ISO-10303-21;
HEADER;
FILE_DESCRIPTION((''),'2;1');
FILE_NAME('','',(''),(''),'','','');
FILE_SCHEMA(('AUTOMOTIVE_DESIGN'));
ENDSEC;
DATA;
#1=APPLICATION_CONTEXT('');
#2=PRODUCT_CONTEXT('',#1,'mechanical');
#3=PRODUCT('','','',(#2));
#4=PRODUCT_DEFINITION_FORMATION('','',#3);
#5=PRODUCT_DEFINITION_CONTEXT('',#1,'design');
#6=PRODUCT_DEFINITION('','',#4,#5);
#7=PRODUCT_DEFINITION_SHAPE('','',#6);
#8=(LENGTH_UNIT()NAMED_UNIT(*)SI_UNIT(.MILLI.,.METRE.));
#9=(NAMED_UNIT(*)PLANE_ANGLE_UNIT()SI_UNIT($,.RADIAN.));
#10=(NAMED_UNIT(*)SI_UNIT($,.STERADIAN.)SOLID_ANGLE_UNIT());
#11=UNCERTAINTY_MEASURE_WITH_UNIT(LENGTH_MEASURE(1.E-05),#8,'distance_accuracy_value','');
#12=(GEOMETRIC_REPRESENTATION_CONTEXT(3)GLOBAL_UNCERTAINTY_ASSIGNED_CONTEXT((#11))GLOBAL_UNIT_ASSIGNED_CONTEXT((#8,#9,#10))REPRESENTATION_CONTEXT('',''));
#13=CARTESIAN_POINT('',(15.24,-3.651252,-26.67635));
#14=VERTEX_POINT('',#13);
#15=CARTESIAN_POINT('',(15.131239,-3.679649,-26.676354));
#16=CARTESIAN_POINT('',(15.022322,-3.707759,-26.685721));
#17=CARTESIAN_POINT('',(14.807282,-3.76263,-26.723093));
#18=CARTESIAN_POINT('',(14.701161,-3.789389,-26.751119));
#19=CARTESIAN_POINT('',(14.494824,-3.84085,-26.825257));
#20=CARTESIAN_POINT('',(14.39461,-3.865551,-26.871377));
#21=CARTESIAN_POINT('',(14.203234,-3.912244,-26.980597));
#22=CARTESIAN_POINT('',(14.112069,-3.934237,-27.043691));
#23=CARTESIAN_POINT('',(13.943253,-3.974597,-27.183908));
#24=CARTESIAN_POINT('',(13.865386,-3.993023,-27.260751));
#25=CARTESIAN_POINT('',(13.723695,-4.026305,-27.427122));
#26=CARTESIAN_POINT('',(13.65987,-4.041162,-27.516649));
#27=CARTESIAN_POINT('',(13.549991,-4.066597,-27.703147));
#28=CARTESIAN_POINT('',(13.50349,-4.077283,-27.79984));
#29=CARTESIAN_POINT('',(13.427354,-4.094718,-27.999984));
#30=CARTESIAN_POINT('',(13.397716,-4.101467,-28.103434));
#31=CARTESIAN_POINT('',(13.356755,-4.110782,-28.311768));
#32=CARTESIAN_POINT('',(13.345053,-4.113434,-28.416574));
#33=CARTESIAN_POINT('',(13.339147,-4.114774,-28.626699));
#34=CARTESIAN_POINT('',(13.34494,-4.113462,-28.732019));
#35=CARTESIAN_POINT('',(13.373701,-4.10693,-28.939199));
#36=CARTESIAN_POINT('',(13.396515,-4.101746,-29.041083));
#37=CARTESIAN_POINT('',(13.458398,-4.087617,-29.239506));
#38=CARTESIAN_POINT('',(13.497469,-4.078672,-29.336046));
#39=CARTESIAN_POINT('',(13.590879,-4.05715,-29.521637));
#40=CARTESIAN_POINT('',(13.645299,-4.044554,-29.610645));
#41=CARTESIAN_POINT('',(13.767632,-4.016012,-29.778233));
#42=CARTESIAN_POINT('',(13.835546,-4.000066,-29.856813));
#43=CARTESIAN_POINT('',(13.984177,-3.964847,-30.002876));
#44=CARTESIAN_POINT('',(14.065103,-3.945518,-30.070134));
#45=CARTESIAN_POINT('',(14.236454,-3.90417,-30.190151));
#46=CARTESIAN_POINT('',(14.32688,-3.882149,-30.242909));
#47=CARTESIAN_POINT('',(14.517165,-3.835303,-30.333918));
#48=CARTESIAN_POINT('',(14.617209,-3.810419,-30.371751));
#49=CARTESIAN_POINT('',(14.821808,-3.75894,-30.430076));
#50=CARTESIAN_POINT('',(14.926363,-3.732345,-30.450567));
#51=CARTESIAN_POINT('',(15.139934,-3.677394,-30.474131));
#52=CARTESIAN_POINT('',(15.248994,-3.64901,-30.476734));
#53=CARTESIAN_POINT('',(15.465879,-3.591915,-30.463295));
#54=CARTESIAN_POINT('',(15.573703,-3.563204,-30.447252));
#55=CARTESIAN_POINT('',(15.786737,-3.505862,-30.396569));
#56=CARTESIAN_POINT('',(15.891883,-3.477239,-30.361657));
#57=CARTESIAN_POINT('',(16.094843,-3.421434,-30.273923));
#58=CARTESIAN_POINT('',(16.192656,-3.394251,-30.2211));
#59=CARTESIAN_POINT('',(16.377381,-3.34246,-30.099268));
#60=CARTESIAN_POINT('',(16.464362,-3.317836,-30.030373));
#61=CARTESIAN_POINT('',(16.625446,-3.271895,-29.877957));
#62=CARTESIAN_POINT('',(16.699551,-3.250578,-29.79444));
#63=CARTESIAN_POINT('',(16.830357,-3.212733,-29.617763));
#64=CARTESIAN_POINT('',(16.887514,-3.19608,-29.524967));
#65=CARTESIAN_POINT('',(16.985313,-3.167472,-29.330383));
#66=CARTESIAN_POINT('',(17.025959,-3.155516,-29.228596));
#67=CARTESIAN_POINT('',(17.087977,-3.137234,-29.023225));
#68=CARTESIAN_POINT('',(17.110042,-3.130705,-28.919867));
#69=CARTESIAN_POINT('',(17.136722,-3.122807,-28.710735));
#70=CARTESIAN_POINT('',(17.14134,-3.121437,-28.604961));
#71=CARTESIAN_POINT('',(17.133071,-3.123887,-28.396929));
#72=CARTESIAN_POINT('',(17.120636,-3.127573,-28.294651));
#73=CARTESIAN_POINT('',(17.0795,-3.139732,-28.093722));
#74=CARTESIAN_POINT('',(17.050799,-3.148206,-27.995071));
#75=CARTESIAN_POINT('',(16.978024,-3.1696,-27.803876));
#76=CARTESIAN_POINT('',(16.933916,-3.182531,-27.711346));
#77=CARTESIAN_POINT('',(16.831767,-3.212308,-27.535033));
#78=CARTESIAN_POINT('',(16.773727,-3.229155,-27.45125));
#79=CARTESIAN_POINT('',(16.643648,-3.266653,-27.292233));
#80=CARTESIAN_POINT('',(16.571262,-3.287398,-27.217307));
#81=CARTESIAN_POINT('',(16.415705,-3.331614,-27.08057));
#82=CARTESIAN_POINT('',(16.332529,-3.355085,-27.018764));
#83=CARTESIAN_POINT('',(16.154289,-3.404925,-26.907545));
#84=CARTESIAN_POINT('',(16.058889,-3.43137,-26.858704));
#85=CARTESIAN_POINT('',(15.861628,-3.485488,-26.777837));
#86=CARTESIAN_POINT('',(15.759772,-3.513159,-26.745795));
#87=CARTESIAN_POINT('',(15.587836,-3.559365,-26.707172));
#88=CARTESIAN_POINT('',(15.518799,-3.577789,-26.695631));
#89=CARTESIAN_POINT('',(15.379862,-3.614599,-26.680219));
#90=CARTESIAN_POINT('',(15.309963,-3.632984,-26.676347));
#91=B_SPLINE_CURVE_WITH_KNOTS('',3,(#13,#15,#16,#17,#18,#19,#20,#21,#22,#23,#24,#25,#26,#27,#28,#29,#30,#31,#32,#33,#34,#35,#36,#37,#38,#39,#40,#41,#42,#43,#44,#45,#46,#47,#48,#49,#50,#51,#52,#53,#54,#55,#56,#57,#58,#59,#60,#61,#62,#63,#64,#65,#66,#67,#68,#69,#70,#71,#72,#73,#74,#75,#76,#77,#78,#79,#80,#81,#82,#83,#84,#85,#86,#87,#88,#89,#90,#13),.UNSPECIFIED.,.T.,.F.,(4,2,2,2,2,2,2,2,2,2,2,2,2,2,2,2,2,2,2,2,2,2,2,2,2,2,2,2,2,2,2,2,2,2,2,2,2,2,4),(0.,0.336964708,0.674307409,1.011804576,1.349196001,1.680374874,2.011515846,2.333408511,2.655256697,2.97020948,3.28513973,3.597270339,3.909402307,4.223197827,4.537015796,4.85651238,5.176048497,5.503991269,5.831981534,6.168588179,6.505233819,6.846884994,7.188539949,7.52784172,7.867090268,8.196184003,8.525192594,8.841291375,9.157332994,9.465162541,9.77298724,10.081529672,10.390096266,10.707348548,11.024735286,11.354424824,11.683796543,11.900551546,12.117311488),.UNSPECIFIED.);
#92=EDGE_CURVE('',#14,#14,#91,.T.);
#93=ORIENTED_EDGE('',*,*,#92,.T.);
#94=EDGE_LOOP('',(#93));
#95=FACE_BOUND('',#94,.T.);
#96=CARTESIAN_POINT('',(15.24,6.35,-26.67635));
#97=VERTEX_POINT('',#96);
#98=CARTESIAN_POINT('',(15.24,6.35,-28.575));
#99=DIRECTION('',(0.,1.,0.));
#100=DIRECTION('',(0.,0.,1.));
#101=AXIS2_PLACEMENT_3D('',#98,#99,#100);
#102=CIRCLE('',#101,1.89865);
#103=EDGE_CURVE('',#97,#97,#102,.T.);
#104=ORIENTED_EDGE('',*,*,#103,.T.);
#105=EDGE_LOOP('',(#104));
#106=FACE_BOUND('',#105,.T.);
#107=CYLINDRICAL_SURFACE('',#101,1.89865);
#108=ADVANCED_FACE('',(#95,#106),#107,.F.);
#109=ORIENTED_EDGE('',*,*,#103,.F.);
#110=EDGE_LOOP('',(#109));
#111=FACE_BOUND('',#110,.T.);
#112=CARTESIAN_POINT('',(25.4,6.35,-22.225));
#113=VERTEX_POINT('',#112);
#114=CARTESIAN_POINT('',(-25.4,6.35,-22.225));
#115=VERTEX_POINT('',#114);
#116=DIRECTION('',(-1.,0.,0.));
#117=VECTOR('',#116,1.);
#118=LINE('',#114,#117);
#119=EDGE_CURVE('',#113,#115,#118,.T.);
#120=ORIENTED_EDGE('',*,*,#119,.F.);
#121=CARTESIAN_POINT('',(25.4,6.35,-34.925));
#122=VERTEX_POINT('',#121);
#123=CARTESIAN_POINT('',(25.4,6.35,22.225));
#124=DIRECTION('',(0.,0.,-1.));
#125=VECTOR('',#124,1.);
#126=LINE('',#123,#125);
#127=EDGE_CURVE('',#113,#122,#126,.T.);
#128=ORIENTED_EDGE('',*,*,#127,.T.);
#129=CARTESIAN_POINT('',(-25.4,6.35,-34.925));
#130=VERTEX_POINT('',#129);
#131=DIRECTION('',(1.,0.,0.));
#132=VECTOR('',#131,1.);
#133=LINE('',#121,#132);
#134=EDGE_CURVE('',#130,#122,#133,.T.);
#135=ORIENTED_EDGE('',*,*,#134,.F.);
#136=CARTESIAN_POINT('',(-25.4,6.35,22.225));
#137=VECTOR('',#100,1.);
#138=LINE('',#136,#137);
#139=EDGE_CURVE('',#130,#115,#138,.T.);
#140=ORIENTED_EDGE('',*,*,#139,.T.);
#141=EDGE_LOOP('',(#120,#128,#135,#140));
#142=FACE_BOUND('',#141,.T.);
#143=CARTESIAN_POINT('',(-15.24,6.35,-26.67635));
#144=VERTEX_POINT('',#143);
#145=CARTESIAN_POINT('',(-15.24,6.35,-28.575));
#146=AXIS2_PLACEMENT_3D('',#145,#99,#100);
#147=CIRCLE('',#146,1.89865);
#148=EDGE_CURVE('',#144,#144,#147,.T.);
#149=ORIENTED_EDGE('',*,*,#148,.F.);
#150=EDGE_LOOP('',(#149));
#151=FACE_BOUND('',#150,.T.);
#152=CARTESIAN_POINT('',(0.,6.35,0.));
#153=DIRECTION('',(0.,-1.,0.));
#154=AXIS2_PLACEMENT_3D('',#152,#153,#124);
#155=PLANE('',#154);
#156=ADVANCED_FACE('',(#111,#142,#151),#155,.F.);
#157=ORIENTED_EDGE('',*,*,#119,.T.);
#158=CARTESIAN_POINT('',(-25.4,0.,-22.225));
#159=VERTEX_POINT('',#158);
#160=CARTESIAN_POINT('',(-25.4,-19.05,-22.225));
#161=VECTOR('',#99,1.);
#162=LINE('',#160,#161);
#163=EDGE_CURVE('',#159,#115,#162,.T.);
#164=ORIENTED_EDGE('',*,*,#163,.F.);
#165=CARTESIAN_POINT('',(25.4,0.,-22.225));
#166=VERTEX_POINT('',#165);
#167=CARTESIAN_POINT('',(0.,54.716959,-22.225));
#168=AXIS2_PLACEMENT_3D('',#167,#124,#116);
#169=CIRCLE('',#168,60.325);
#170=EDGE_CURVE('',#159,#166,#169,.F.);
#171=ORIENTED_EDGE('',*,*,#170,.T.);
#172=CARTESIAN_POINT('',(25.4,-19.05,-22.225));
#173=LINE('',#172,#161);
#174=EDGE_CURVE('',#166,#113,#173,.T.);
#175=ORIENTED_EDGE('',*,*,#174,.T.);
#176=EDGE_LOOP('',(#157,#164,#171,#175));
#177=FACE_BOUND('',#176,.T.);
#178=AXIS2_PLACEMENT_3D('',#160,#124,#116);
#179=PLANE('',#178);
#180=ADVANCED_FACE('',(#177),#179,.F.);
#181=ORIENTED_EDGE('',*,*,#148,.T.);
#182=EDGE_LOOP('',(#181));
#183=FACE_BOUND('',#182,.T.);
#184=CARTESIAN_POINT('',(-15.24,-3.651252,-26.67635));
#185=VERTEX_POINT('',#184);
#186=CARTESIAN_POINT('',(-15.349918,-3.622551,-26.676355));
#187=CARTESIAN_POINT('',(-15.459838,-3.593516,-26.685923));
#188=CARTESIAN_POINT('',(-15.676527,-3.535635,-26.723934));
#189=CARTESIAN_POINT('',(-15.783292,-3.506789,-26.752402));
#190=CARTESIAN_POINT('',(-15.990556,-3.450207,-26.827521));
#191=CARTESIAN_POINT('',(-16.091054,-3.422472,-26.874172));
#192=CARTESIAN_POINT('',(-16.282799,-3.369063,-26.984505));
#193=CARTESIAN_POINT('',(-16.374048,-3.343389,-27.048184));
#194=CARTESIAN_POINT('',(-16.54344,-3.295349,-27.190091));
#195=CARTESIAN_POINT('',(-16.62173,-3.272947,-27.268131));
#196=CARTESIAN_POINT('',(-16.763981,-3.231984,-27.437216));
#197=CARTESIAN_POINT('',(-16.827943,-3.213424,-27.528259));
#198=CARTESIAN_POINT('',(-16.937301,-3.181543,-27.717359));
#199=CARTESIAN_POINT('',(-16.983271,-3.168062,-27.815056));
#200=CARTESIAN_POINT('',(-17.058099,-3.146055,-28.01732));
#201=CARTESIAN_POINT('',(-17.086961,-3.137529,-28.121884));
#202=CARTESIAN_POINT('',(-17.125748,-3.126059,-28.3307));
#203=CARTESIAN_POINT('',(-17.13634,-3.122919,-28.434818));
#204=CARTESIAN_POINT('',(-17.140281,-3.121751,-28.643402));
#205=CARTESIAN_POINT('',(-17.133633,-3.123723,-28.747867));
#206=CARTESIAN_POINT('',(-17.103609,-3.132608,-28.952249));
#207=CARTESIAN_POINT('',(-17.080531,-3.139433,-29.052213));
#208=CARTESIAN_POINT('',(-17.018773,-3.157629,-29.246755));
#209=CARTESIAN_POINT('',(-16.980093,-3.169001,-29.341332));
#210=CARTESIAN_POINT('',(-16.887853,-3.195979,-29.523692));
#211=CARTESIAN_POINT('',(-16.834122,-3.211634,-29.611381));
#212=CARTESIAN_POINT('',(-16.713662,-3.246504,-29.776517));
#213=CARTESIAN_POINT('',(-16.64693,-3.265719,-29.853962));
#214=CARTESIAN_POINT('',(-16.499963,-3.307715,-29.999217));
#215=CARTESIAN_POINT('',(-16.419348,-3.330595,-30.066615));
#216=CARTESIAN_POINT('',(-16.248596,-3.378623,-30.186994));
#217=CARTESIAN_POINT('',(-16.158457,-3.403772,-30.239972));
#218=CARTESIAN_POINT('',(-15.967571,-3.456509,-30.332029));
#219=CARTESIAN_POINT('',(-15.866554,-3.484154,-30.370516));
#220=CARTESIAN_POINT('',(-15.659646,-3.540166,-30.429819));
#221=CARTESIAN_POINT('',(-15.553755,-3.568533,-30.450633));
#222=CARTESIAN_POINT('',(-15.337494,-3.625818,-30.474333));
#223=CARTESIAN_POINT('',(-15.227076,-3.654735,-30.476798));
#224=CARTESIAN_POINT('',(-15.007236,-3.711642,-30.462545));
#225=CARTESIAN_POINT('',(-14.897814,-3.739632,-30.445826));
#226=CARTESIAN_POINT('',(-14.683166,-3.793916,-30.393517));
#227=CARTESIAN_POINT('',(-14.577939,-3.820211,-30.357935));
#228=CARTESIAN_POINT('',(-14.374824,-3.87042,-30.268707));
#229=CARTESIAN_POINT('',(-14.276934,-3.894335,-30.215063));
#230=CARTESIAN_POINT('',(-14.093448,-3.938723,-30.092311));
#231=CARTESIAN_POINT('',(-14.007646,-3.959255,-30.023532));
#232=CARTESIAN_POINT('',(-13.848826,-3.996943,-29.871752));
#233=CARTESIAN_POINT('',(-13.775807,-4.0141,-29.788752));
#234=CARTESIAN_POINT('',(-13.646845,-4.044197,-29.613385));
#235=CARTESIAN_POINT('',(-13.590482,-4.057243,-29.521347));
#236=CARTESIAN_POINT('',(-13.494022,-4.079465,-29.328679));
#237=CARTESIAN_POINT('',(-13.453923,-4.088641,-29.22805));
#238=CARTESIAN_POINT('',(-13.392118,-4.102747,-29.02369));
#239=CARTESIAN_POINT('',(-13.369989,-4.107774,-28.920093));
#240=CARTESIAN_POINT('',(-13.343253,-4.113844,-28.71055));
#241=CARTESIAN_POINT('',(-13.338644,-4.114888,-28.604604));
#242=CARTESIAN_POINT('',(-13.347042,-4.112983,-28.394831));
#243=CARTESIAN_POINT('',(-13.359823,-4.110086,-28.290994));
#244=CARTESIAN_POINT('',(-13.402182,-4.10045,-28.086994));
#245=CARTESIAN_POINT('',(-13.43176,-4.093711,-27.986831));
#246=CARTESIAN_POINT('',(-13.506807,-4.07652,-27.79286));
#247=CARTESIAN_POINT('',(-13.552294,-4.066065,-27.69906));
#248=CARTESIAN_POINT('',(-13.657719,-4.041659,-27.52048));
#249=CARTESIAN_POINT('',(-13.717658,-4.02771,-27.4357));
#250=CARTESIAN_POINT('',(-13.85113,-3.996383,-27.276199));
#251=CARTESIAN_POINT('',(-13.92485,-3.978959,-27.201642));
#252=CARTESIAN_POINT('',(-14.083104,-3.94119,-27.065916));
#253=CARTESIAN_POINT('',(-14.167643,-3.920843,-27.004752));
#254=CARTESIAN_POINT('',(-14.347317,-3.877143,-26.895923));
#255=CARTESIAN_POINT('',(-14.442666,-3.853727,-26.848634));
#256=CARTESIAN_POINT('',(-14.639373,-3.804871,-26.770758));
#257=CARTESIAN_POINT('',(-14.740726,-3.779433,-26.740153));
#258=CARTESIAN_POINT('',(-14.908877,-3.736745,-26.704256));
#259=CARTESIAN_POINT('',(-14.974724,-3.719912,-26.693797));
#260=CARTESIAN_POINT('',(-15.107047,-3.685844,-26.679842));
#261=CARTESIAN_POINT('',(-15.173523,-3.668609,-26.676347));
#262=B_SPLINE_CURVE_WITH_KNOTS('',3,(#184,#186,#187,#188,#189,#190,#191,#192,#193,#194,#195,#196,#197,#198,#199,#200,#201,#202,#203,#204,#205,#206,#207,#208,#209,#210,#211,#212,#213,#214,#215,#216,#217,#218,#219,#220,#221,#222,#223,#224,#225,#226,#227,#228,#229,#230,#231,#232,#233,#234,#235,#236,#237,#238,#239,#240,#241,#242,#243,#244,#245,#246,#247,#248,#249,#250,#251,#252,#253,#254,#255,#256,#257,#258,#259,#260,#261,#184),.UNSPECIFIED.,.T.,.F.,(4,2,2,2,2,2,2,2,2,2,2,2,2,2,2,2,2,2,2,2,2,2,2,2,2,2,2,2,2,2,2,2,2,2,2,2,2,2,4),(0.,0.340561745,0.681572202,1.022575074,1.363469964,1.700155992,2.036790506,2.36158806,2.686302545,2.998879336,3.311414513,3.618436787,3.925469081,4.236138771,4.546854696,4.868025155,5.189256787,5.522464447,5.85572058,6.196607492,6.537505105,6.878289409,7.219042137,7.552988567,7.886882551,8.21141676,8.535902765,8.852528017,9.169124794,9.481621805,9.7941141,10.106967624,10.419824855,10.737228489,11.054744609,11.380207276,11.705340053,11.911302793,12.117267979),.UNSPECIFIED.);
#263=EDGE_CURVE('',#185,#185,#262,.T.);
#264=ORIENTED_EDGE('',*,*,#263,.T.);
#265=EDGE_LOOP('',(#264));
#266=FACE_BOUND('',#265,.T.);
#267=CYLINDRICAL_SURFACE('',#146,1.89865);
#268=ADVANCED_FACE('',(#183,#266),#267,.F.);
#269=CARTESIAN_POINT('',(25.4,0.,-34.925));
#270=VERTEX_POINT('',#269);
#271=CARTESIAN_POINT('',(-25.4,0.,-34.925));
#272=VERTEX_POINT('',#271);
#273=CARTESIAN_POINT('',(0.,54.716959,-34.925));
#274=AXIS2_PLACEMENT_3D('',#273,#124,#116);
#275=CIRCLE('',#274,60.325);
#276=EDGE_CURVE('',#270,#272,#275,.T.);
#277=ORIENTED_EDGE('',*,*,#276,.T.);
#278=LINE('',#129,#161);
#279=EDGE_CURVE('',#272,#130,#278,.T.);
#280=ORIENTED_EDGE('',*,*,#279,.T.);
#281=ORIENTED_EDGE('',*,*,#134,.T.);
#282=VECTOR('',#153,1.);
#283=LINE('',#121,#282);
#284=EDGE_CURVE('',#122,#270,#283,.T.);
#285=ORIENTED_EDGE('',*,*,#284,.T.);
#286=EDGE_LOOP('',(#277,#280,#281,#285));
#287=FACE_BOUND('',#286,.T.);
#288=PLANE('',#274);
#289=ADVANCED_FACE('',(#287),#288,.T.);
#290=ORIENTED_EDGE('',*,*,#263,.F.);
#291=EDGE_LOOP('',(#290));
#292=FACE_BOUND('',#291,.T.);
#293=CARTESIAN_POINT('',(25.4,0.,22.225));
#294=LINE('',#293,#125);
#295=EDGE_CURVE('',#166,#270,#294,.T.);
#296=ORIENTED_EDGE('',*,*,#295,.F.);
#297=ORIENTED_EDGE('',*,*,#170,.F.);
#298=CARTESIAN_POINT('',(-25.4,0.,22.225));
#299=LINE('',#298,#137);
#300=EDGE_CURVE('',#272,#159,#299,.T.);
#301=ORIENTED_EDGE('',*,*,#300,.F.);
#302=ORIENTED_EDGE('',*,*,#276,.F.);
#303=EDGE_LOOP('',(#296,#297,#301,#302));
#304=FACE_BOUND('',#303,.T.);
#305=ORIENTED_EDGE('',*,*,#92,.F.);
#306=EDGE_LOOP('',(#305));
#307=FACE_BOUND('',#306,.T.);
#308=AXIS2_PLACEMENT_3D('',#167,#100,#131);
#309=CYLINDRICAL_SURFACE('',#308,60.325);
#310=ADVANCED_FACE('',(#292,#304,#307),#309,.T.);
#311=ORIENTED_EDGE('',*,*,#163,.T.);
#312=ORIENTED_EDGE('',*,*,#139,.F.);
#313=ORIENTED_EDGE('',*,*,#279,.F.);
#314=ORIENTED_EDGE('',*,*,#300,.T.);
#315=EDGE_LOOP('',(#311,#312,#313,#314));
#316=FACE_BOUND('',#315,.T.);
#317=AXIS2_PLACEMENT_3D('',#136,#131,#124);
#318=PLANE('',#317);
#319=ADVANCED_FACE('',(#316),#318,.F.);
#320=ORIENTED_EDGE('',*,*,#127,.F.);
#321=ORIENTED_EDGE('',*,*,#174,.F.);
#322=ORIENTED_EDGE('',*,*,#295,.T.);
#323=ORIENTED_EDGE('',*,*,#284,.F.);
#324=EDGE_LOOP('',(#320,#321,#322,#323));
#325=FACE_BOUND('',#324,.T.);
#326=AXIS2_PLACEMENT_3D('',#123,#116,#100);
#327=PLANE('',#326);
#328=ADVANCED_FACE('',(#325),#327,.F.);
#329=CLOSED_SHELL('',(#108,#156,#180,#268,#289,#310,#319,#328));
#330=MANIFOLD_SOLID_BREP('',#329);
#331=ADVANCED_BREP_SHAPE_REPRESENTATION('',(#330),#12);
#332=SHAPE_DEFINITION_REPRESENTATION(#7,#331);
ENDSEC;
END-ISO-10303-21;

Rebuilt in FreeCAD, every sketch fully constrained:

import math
import FreeCAD as App
import Part
import Sketcher

V = App.Vector
Q = App.Units.Quantity


def add_polygon(sketch, points):
    """Adds a closed chain of lines whose ends are joined by coincident constraints."""
    first, n = sketch.GeometryCount, len(points)
    for a, b in zip(points, points[1:] + points[:1]):
        sketch.addGeometry(Part.LineSegment(App.Vector(*a, 0), App.Vector(*b, 0)), False)
    for i in range(n):
        sketch.addConstraint(Sketcher.Constraint("Coincident", first + i, 2, first + (i + 1) % n, 1))

doc = App.newDocument("Part")
body = doc.addObject("PartDesign::Body", "Body")

sketch1 = body.newObject("Sketcher::SketchObject", "Sketch")
sketch1.AttachmentSupport = (doc.getObject("XZ_Plane"), [""])
sketch1.MapMode = "FlatFace"
add_polygon(sketch1, [(-25.4, -22.225), (-25.4, 22.225), (25.4, 22.225), (25.4, -22.225)])
sketch1.addConstraint([
    Sketcher.Constraint("Vertical", 0),
    Sketcher.Constraint("Horizontal", 1),
    Sketcher.Constraint("Vertical", 2),
    Sketcher.Constraint("Horizontal", 3),
    Sketcher.Constraint("Symmetric", 0, 2, 2, 2, -1, 1),
    Sketcher.Constraint("DistanceX", 1, 1, 1, 2, Q("2 in")),
    Sketcher.Constraint("DistanceY", 0, 1, 0, 2, Q("1.75 in")),
])
pad1 = body.newObject("PartDesign::Pad", "Pad")
pad1.Profile = sketch1
pad1.Length = Q("0.25 in")
pad1.Reversed = True

sketch2 = body.newObject("Sketcher::SketchObject", "Sketch001")
sketch2.AttachmentSupport = (doc.getObject("XY_Plane"), [""])
sketch2.MapMode = "FlatFace"
sketch2.AttachmentOffset = App.Placement(V(0, 0, 0.875 * 25.4), App.Rotation())
sketch2.addGeometry([
    Part.LineSegment(V(25.4, 0, 0), V(-25.4, 0, 0)),
    Part.ArcOfCircle(Part.Circle(V(0, 54.716959, 0), V(0, 0, 1), 60.325), math.radians(-114.901062), math.radians(-65.098938)),
], False)
sketch2.addConstraint([
    Sketcher.Constraint("Coincident", 0, 1, 1, 2),
    Sketcher.Constraint("Coincident", 1, 1, 0, 2),
    Sketcher.Constraint("Horizontal", 0),
    Sketcher.Constraint("Symmetric", 0, 1, 1, 1, -1, 1),
    Sketcher.Constraint("DistanceX", 0, 2, 0, 1, Q("2 in")),
    Sketcher.Constraint("Radius", 1, Q("2.375 in")),
])
pad2 = body.newObject("PartDesign::Pad", "Pad001")
pad2.Profile = sketch2
pad2.Length = Q("1.75 in")
pad2.Reversed = True

sketch3 = body.newObject("Sketcher::SketchObject", "Sketch002")
sketch3.AttachmentSupport = (doc.getObject("XZ_Plane"), [""])
sketch3.MapMode = "FlatFace"
sketch3.AttachmentOffset = App.Placement(V(0, 0, -0.25 * 25.4), App.Rotation())
sketch3.addGeometry([
    Part.Circle(V(0, -14.649991, 0), V(0, 0, 1), 1.65),
    Part.Circle(V(-17.950002, 14.650009, 0), V(0, 0, 1), 1.65),
    Part.Circle(V(17.949998, 14.650009, 0), V(0, 0, 1), 1.65),
], False)
sketch3.addConstraint([
    Sketcher.Constraint("Equal", 0, 1),
    Sketcher.Constraint("Equal", 1, 2),
    Sketcher.Constraint("Symmetric", 1, 3, 2, 3, -2),
    Sketcher.Constraint("PointOnObject", 0, 3, -2),
    Sketcher.Constraint("Diameter", 0, 3.3),
    Sketcher.Constraint("DistanceY", 0, 3, 1, 3, 29.3),
    Sketcher.Constraint("DistanceX", 1, 3, 2, 3, 35.9),
    Sketcher.Constraint("DistanceY", 0, 3, -1, 1, 14.649991),
])
doc.recompute()
hole = body.newObject("PartDesign::Hole", "Hole")
hole.Profile = sketch3
hole.ThreadType = "None"
hole.Diameter = 3.3
hole.DepthType = "ThroughAll"
hole.Reversed = True

sketch4 = body.newObject("Sketcher::SketchObject", "Sketch003")
sketch4.AttachmentSupport = (doc.getObject("XY_Plane"), [""])
sketch4.MapMode = "FlatFace"
sketch4.AttachmentOffset = App.Placement(V(0, 0, -0.875 * 25.4), App.Rotation())
sketch4.addGeometry([
    Part.LineSegment(V(-25.4, 6.35, 0), V(25.4, 6.35, 0)),
    Part.LineSegment(V(25.4, 6.35, 0), V(25.4, 0, 0)),
    Part.ArcOfCircle(Part.Circle(V(0, 54.716959, 0), V(0, 0, 1), 60.325), math.radians(-114.901062), math.radians(-65.098938)),
    Part.LineSegment(V(-25.4, 0, 0), V(-25.4, 6.35, 0)),
], False)
sketch4.addConstraint([
    Sketcher.Constraint("Coincident", 0, 2, 1, 1),
    Sketcher.Constraint("Coincident", 1, 2, 2, 2),
    Sketcher.Constraint("Coincident", 2, 1, 3, 1),
    Sketcher.Constraint("Coincident", 3, 2, 0, 1),
    Sketcher.Constraint("Horizontal", 0),
    Sketcher.Constraint("Vertical", 1),
    Sketcher.Constraint("Vertical", 3),
    Sketcher.Constraint("Symmetric", 1, 2, 2, 1, -1, 1),
    Sketcher.Constraint("PointOnObject", 2, 3, -2),
    Sketcher.Constraint("DistanceX", 0, 1, 0, 2, Q("2 in")),
    Sketcher.Constraint("Radius", 2, Q("2.375 in")),
    Sketcher.Constraint("DistanceY", 1, 2, 1, 1, Q("0.25 in")),
])
pad3 = body.newObject("PartDesign::Pad", "Pad002")
pad3.Profile = sketch4
pad3.Length = Q("0.5 in")
pad3.Reversed = True

sketch5 = body.newObject("Sketcher::SketchObject", "Sketch004")
sketch5.AttachmentSupport = (doc.getObject("XZ_Plane"), [""])
sketch5.MapMode = "FlatFace"
sketch5.AttachmentOffset = App.Placement(V(0, 0, -0.25 * 25.4), App.Rotation())
sketch5.addGeometry([
    Part.Circle(V(-15.24, -28.575, 0), V(0, 0, 1), 1.89865),
    Part.Circle(V(15.24, -28.575, 0), V(0, 0, 1), 1.89865),
], False)
sketch5.addConstraint([
    Sketcher.Constraint("Equal", 0, 1),
    Sketcher.Constraint("Symmetric", 0, 3, 1, 3, -2),
    Sketcher.Constraint("Diameter", 0, Q("0.1495 in")),
    Sketcher.Constraint("DistanceX", 0, 3, -1, 1, Q("0.6 in")),
    Sketcher.Constraint("DistanceY", 0, 3, -1, 1, Q("1.125 in")),
])
doc.recompute()
hole2 = body.newObject("PartDesign::Hole", "Hole001")
hole2.Profile = sketch5
hole2.ThreadType = "None"
hole2.Diameter = Q("0.1495 in")
hole2.DepthType = "ThroughAll"
hole2.Reversed = True

sketch6 = body.newObject("Sketcher::SketchObject", "Sketch005")
sketch6.AttachmentSupport = (doc.getObject("XZ_Plane"), [""])
sketch6.MapMode = "FlatFace"
sketch6.AttachmentOffset = App.Placement(V(0, 0, -0.25 * 25.4), App.Rotation())
add_polygon(sketch6, [(-25.4, -22.225), (-25.4, 22.225), (25.4, 22.225), (25.4, -22.225)])
sketch6.addConstraint([
    Sketcher.Constraint("Vertical", 0),
    Sketcher.Constraint("Horizontal", 1),
    Sketcher.Constraint("Vertical", 2),
    Sketcher.Constraint("Horizontal", 3),
    Sketcher.Constraint("Symmetric", 0, 2, 2, 2, -1, 1),
    Sketcher.Constraint("DistanceX", 1, 1, 1, 2, Q("2 in")),
    Sketcher.Constraint("DistanceY", 0, 1, 0, 2, Q("1.75 in")),
])
pocket1 = body.newObject("PartDesign::Pocket", "Pocket")
pocket1.Profile = sketch6
pocket1.Length = Q("1 in")
pocket1.Reversed = True

doc.recompute()
